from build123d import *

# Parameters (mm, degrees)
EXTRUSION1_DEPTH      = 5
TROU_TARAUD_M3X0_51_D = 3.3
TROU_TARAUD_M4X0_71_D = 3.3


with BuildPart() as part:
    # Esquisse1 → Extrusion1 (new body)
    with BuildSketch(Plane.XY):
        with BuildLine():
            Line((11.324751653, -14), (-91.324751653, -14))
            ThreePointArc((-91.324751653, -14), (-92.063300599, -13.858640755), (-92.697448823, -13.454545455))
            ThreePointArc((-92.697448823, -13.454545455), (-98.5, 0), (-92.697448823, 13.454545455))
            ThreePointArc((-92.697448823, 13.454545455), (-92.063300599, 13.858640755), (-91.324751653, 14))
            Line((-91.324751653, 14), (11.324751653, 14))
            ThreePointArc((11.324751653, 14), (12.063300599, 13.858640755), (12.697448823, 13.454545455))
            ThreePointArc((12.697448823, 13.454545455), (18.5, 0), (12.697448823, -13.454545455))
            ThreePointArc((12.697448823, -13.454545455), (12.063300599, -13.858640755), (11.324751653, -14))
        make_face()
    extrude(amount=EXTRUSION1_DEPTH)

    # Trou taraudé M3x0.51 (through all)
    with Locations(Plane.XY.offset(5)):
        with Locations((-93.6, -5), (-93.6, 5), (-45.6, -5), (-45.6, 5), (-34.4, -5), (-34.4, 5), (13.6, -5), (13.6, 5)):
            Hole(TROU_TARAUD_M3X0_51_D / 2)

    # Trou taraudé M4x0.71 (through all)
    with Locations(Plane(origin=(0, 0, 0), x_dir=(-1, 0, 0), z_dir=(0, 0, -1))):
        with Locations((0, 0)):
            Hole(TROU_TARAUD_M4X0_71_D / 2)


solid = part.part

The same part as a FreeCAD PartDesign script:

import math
import FreeCAD as App
import Part
import Sketcher

V = App.Vector
Q = App.Units.Quantity

doc = App.newDocument("Part")
body = doc.addObject("PartDesign::Body", "Body")

# Sketch on XY plane
sketch1 = doc.addObject("Sketcher::SketchObject", "Sketch")
body.addObject(sketch1)
sketch1.AttachmentSupport = (doc.XY_Plane, [""])
sketch1.MapMode = "FlatFace"
sketch1.addGeometry([
    Part.LineSegment(V(-91.3, -14, 0), V(11.3, -14, 0)),  # 0
    Part.ArcOfCircle(Part.Circle(V(11.3, -12, 0), V(0, 0, 1), 2), math.radians(-90), math.radians(-47)),  # 1
    Part.ArcOfCircle(Part.Circle(V(0, 0, 0), V(0, 0, 1), 18.5), math.radians(-47), math.radians(47)),  # 2
    Part.ArcOfCircle(Part.Circle(V(11.3, 12, 0), V(0, 0, 1), 2), math.radians(47), math.radians(90)),  # 3
    Part.LineSegment(V(11.3, 14, 0), V(-91.3, 14, 0)),  # 4
    Part.ArcOfCircle(Part.Circle(V(-91.3, 12, 0), V(0, 0, 1), 2), math.radians(90), math.radians(133)),  # 5
    Part.ArcOfCircle(Part.Circle(V(-80, 0, 0), V(0, 0, 1), 18.5), math.radians(133), math.radians(227)),  # 6
    Part.ArcOfCircle(Part.Circle(V(-91.3, -12, 0), V(0, 0, 1), 2), math.radians(-133), math.radians(-90)),  # 7
], False)
sketch1.addConstraint([
    Sketcher.Constraint("Tangent", 0, 2, 1, 1),
    Sketcher.Constraint("Tangent", 1, 2, 2, 1),
    Sketcher.Constraint("Tangent", 2, 2, 3, 1),
    Sketcher.Constraint("Tangent", 3, 2, 4, 1),
    Sketcher.Constraint("Tangent", 4, 2, 5, 1),
    Sketcher.Constraint("Tangent", 5, 2, 6, 1),
    Sketcher.Constraint("Tangent", 6, 2, 7, 1),
    Sketcher.Constraint("Tangent", 7, 2, 0, 1),
    Sketcher.Constraint("Horizontal", 0),
    Sketcher.Constraint("Horizontal", 4),
    Sketcher.Constraint("Coincident", 2, 3, -1, 1),
    Sketcher.Constraint("Equal", 1, 3),
    Sketcher.Constraint("Equal", 3, 5),
    Sketcher.Constraint("Equal", 2, 6),
    Sketcher.Constraint("Equal", 5, 7),
    Sketcher.Constraint("Symmetric", 5, 3, 7, 3, -1),
    Sketcher.Constraint("Radius", 1, Q("2 mm")),
    Sketcher.Constraint("Radius", 2, Q("18.5 mm")),
    Sketcher.Constraint("DistanceY", 1, 3, -1, 1, Q("12 mm")),
    Sketcher.Constraint("DistanceX", 6, 3, -1, 1, Q("80 mm")),
])
pad1 = doc.addObject("PartDesign::Pad", "Pad")
body.addObject(pad1)
pad1.Profile = sketch1
pad1.Length = 5

# Sketch on XY plane
sketch2 = doc.addObject("Sketcher::SketchObject", "Sketch001")
body.addObject(sketch2)
sketch2.AttachmentSupport = (doc.XY_Plane, [""])
sketch2.MapMode = "FlatFace"
sketch2.AttachmentOffset = App.Placement(V(0, 0, 5), App.Rotation())
sketch2.addGeometry([
    Part.Circle(V(-93.6, -5, 0), V(0, 0, 1), 1.6),  # 0
    Part.Circle(V(-93.6, 5, 0), V(0, 0, 1), 1.6),  # 1
    Part.Circle(V(-45.6, -5, 0), V(0, 0, 1), 1.6),  # 2
    Part.Circle(V(-45.6, 5, 0), V(0, 0, 1), 1.6),  # 3
    Part.Circle(V(-34.4, -5, 0), V(0, 0, 1), 1.6),  # 4
    Part.Circle(V(-34.4, 5, 0), V(0, 0, 1), 1.6),  # 5
    Part.Circle(V(13.6, -5, 0), V(0, 0, 1), 1.6),  # 6
    Part.Circle(V(13.6, 5, 0), V(0, 0, 1), 1.6),  # 7
], False)
sketch2.addConstraint([
    Sketcher.Constraint("Equal", 0, 1),
    Sketcher.Constraint("Equal", 1, 2),
    Sketcher.Constraint("Equal", 2, 3),
    Sketcher.Constraint("Equal", 3, 4),
    Sketcher.Constraint("Equal", 4, 5),
    Sketcher.Constraint("Equal", 5, 6),
    Sketcher.Constraint("Equal", 6, 7),
    Sketcher.Constraint("Symmetric", 0, 3, 1, 3, -1),
    Sketcher.Constraint("Symmetric", 2, 3, 3, 3, -1),
    Sketcher.Constraint("Symmetric", 4, 3, 5, 3, -1),
    Sketcher.Constraint("Symmetric", 6, 3, 7, 3, -1),
    Sketcher.Constraint("Horizontal", 0, 3, 2, 3),
    Sketcher.Constraint("Horizontal", 2, 3, 4, 3),
    Sketcher.Constraint("Horizontal", 4, 3, 6, 3),
    Sketcher.Constraint("Diameter", 0, Q("3.3 mm")),
    Sketcher.Constraint("DistanceY", 0, 3, -1, 1, Q("5 mm")),
    Sketcher.Constraint("DistanceX", 0, 3, 2, 3, Q("48 mm")),
    Sketcher.Constraint("DistanceX", 4, 3, 6, 3, Q("48 mm")),
    Sketcher.Constraint("DistanceX", 0, 3, -1, 1, Q("93.6 mm")),
    Sketcher.Constraint("DistanceX", 4, 3, -1, 1, Q("34.4 mm")),
])
doc.recompute()
hole = doc.addObject("PartDesign::Hole", "Hole")
body.addObject(hole)
hole.Profile = sketch2
hole.ThreadType = "None"
hole.Diameter = 3.3
hole.DepthType = "ThroughAll"

# Sketch on XY plane
sketch3 = doc.addObject("Sketcher::SketchObject", "Sketch002")
body.addObject(sketch3)
sketch3.AttachmentSupport = (doc.XY_Plane, [""])
sketch3.MapMode = "FlatFace"
sketch3.addGeometry(Part.Circle(V(0, 0, 0), V(0, 0, 1), 1.6), False)
sketch3.addConstraint([
    Sketcher.Constraint("Coincident", 0, 3, -1, 1),
    Sketcher.Constraint("Diameter", 0, Q("3.3 mm")),
])
doc.recompute()
hole2 = doc.addObject("PartDesign::Hole", "Hole001")
body.addObject(hole2)
hole2.Profile = sketch3
hole2.ThreadType = "None"
hole2.Diameter = 3.3
hole2.DepthType = "ThroughAll"
hole2.Reversed = True

doc.recompute()
